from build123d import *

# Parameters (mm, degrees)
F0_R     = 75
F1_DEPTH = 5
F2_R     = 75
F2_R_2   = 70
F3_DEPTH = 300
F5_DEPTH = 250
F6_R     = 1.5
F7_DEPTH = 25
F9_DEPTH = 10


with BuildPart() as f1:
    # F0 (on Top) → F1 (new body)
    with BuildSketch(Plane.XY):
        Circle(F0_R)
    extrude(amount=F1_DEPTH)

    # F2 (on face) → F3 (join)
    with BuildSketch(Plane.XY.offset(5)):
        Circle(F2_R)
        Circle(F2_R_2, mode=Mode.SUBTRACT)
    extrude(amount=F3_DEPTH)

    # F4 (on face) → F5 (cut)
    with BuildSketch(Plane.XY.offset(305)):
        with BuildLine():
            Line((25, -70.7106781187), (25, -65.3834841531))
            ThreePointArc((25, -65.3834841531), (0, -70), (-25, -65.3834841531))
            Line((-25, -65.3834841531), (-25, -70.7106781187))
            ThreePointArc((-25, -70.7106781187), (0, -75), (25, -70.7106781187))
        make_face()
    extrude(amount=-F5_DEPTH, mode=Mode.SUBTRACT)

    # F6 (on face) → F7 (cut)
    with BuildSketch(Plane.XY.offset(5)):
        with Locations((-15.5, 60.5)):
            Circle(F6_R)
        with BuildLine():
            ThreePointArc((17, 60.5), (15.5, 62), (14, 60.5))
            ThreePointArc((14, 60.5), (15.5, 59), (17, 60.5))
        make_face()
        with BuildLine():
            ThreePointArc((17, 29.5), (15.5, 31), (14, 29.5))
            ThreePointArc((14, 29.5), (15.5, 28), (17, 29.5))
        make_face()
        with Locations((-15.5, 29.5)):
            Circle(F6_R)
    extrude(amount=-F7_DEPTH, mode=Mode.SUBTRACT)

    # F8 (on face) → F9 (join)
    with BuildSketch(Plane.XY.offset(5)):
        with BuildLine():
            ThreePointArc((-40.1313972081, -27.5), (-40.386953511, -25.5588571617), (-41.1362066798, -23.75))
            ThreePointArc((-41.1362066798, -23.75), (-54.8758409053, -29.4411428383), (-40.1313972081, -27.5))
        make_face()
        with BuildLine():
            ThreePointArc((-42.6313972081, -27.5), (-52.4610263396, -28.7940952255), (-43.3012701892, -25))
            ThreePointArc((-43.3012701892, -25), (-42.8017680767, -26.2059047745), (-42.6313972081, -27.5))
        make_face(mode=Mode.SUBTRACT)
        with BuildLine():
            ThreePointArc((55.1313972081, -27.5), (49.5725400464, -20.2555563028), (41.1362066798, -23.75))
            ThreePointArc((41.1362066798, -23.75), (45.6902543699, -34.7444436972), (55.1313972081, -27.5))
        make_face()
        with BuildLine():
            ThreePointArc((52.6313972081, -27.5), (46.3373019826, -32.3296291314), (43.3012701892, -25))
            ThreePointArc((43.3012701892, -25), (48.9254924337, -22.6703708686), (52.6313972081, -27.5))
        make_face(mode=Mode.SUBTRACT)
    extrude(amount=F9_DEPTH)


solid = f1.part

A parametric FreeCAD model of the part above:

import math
import FreeCAD as App
import Part
import Sketcher

V = App.Vector
Q = App.Units.Quantity

doc = App.newDocument("Part")
params = doc.addObject("Spreadsheet::Sheet", "Params")
for row, (alias, value) in enumerate([
    ("sketch1_diameter", "150 mm"),
    ("pad1_length", "5 mm"),
    ("sketch2_diameter", "150 mm"),
    ("sketch2_diameter2", "140 mm"),
    ("pad2_length", "300 mm"),
    ("sketch3_radius", "70 mm"),
    ("sketch3_radius2", "75 mm"),
    ("pocket1_length", "250 mm"),
    ("sketch4_diameter", "3 mm"),
    ("pocket2_length", "25 mm"),
    ("sketch5_radius", "5 mm"),
    ("sketch5_radius2", "7.5 mm"),
    ("pad3_length", "10 mm"),
], start=1):
    params.set(f"A{row}", alias)
    params.set(f"B{row}", "=" + value)
    params.setAlias(f"B{row}", alias)

body = doc.addObject("PartDesign::Body", "Body")

sketch1 = body.newObject("Sketcher::SketchObject", "Sketch")
sketch1.AttachmentSupport = (doc.getObject("XY_Plane"), [""])
sketch1.MapMode = "FlatFace"
sketch1.addGeometry(Part.Circle(V(0, 0, 0), V(0, 0, 1), 75), False)
sketch1.addConstraint(Sketcher.Constraint("Coincident", 0, 3, -1, 1))
sketch1.addConstraint(Sketcher.Constraint("Diameter", 0, Q("150 mm")))
sketch1.setExpression("Constraints[1]", "Params.sketch1_diameter")
pad1 = body.newObject("PartDesign::Pad", "Pad")
pad1.Profile = sketch1
pad1.setExpression("Length", "Params.pad1_length")

sketch2 = body.newObject("Sketcher::SketchObject", "Sketch001")
sketch2.AttachmentSupport = (doc.getObject("XY_Plane"), [""])
sketch2.MapMode = "FlatFace"
sketch2.AttachmentOffset = App.Placement(V(0, 0, 5), App.Rotation())
sketch2.addGeometry(Part.Circle(V(0, 0, 0), V(0, 0, 1), 75), False)
sketch2.addGeometry(Part.Circle(V(0, 0, 0), V(0, 0, 1), 70), False)
sketch2.addConstraint(Sketcher.Constraint("Coincident", 0, 3, -1, 1))
sketch2.addConstraint(Sketcher.Constraint("Coincident", 1, 3, -1, 1))
sketch2.addConstraint(Sketcher.Constraint("Diameter", 0, Q("150 mm")))
sketch2.addConstraint(Sketcher.Constraint("Diameter", 1, Q("140 mm")))
sketch2.setExpression("Constraints[2]", "Params.sketch2_diameter")
sketch2.setExpression("Constraints[3]", "Params.sketch2_diameter2")
pad2 = body.newObject("PartDesign::Pad", "Pad001")
pad2.Profile = sketch2
pad2.setExpression("Length", "Params.pad2_length")

sketch3 = body.newObject("Sketcher::SketchObject", "Sketch002")
sketch3.AttachmentSupport = (doc.getObject("XY_Plane"), [""])
sketch3.MapMode = "FlatFace"
sketch3.AttachmentOffset = App.Placement(V(0, 0, 305), App.Rotation())
sketch3.addGeometry(Part.LineSegment(V(25, -71, 0), V(25, -65, 0)), False)
sketch3.addGeometry(Part.ArcOfCircle(Part.Circle(V(0, 0, 0), V(0, 0, 1), 70), math.radians(-111), math.radians(-69)), False)
sketch3.addGeometry(Part.LineSegment(V(-25, -65, 0), V(-25, -71, 0)), False)
sketch3.addGeometry(Part.ArcOfCircle(Part.Circle(V(0, 0, 0), V(0, 0, 1), 75), math.radians(-109), math.radians(-71)), False)
sketch3.addConstraint(Sketcher.Constraint("Coincident", 0, 2, 1, 2))
sketch3.addConstraint(Sketcher.Constraint("Coincident", 1, 1, 2, 1))
sketch3.addConstraint(Sketcher.Constraint("Coincident", 2, 2, 3, 1))
sketch3.addConstraint(Sketcher.Constraint("Coincident", 3, 2, 0, 1))
sketch3.addConstraint(Sketcher.Constraint("Vertical", 0))
sketch3.addConstraint(Sketcher.Constraint("Vertical", 2))
sketch3.addConstraint(Sketcher.Constraint("Coincident", 1, 3, -1, 1))
sketch3.addConstraint(Sketcher.Constraint("Coincident", 3, 3, -1, 1))
sketch3.addConstraint(Sketcher.Constraint("Horizontal", 0, 2, 1, 1))
sketch3.addConstraint(Sketcher.Constraint("Radius", 1, Q("70 mm")))
sketch3.addConstraint(Sketcher.Constraint("Radius", 3, Q("75 mm")))
sketch3.addConstraint(Sketcher.Constraint("DistanceX", -1, 1, 0, 2, Q("25 mm")))
sketch3.setExpression("Constraints[9]", "Params.sketch3_radius")
sketch3.setExpression("Constraints[10]", "Params.sketch3_radius2")
pocket1 = body.newObject("PartDesign::Pocket", "Pocket")
pocket1.Profile = sketch3
pocket1.setExpression("Length", "Params.pocket1_length")

sketch4 = body.newObject("Sketcher::SketchObject", "Sketch003")
sketch4.AttachmentSupport = (doc.getObject("XY_Plane"), [""])
sketch4.MapMode = "FlatFace"
sketch4.AttachmentOffset = App.Placement(V(0, 0, 5), App.Rotation())
sketch4.addGeometry(Part.Circle(V(-15.5, 60.5, 0), V(0, 0, 1), 1.5), False)
sketch4.addGeometry(Part.Circle(V(15.5, 60.5, 0), V(0, 0, 1), 1.5), False)
sketch4.addGeometry(Part.Circle(V(15.5, 29.5, 0), V(0, 0, 1), 1.5), False)
sketch4.addGeometry(Part.Circle(V(-15.5, 29.5, 0), V(0, 0, 1), 1.5), False)
sketch4.addConstraint(Sketcher.Constraint("Equal", 0, 1))
sketch4.addConstraint(Sketcher.Constraint("Equal", 1, 2))
sketch4.addConstraint(Sketcher.Constraint("Equal", 2, 3))
sketch4.addConstraint(Sketcher.Constraint("Symmetric", 0, 3, 1, 3, -2))
sketch4.addConstraint(Sketcher.Constraint("Symmetric", 2, 3, 3, 3, -2))
sketch4.addConstraint(Sketcher.Constraint("Vertical", 1, 3, 2, 3))
sketch4.addConstraint(Sketcher.Constraint("Diameter", 0, Q("3 mm")))
sketch4.addConstraint(Sketcher.Constraint("DistanceX", 0, 3, 1, 3, Q("31 mm")))
sketch4.addConstraint(Sketcher.Constraint("DistanceY", 2, 3, 1, 3, Q("31 mm")))
sketch4.addConstraint(Sketcher.Constraint("DistanceY", -1, 1, 0, 3, Q("60.5 mm")))
sketch4.setExpression("Constraints[6]", "Params.sketch4_diameter")
pocket2 = body.newObject("PartDesign::Pocket", "Pocket001")
pocket2.Profile = sketch4
pocket2.setExpression("Length", "Params.pocket2_length")

sketch5 = body.newObject("Sketcher::SketchObject", "Sketch004")
sketch5.AttachmentSupport = (doc.getObject("XY_Plane"), [""])
sketch5.MapMode = "FlatFace"
sketch5.AttachmentOffset = App.Placement(V(0, 0, 5), App.Rotation())
sketch5.addGeometry(Part.ArcOfCircle(Part.Circle(V(-47.6, -27.5, 0), V(0, 0, 1), 7.5), math.radians(0), math.radians(30)), False)
sketch5.addGeometry(Part.ArcOfCircle(Part.Circle(V(-47.6, -27.5, 0), V(0, 0, 1), 7.5), math.radians(30), math.radians(360)), False)
sketch5.addGeometry(Part.ArcOfCircle(Part.Circle(V(-47.6, -27.5, 0), V(0, 0, 1), 5), math.radians(0), math.radians(30)), False)
sketch5.addGeometry(Part.ArcOfCircle(Part.Circle(V(-47.6, -27.5, 0), V(0, 0, 1), 5), math.radians(30), math.radians(360)), False)
sketch5.addGeometry(Part.ArcOfCircle(Part.Circle(V(47.6, -27.5, 0), V(0, 0, 1), 7.5), math.radians(0), math.radians(150)), False)
sketch5.addGeometry(Part.ArcOfCircle(Part.Circle(V(47.6, -27.5, 0), V(0, 0, 1), 7.5), math.radians(150), math.radians(360)), False)
sketch5.addGeometry(Part.ArcOfCircle(Part.Circle(V(47.6, -27.5, 0), V(0, 0, 1), 5), math.radians(0), math.radians(150)), False)
sketch5.addGeometry(Part.ArcOfCircle(Part.Circle(V(47.6, -27.5, 0), V(0, 0, 1), 5), math.radians(150), math.radians(360)), False)
sketch5.addConstraint(Sketcher.Constraint("Tangent", 0, 1, 1, 2))
sketch5.addConstraint(Sketcher.Constraint("Coincident", 1, 1, 0, 2))
sketch5.addConstraint(Sketcher.Constraint("Tangent", 2, 1, 3, 2))
sketch5.addConstraint(Sketcher.Constraint("Coincident", 3, 1, 2, 2))
sketch5.addConstraint(Sketcher.Constraint("Tangent", 4, 1, 5, 2))
sketch5.addConstraint(Sketcher.Constraint("Coincident", 5, 1, 4, 2))
sketch5.addConstraint(Sketcher.Constraint("Tangent", 6, 1, 7, 2))
sketch5.addConstraint(Sketcher.Constraint("Coincident", 7, 1, 6, 2))
sketch5.addConstraint(Sketcher.Constraint("Coincident", 2, 3, 0, 3))
sketch5.addConstraint(Sketcher.Constraint("Coincident", 6, 3, 4, 3))
sketch5.addConstraint(Sketcher.Constraint("Equal", 1, 4))
sketch5.addConstraint(Sketcher.Constraint("Equal", 3, 6))
sketch5.addConstraint(Sketcher.Constraint("Symmetric", 0, 3, 4, 3, -2))
sketch5.addConstraint(Sketcher.Constraint("Horizontal", 7, 3, 0, 1))
sketch5.addConstraint(Sketcher.Constraint("Horizontal", 0, 1, 2, 1))
sketch5.addConstraint(Sketcher.Constraint("Horizontal", 2, 1, 4, 1))
sketch5.addConstraint(Sketcher.Constraint("Horizontal", 1, 1, 5, 1))
sketch5.addConstraint(Sketcher.Constraint("Horizontal", 4, 1, 6, 1))
sketch5.addConstraint(Sketcher.Constraint("Horizontal", 3, 1, 7, 1))
sketch5.addConstraint(Sketcher.Constraint("Radius", 2, Q("5 mm")))
sketch5.addConstraint(Sketcher.Constraint("Radius", 0, Q("7.5 mm")))
sketch5.addConstraint(Sketcher.Constraint("DistanceY", 3, 1, -1, 1, Q("25 mm")))
sketch5.addConstraint(Sketcher.Constraint("DistanceY", 0, 3, -1, 1, Q("27.5 mm")))
sketch5.addConstraint(Sketcher.Constraint("DistanceY", 1, 1, -1, 1, Q("23.75 mm")))
sketch5.addConstraint(Sketcher.Constraint("DistanceX", 3, 1, -1, 1, Q("43.30127 mm")))
sketch5.setExpression("Constraints[19]", "Params.sketch5_radius")
sketch5.setExpression("Constraints[20]", "Params.sketch5_radius2")
pad3 = body.newObject("PartDesign::Pad", "Pad002")
pad3.Profile = sketch5
pad3.setExpression("Length", "Params.pad3_length")

doc.recompute()
